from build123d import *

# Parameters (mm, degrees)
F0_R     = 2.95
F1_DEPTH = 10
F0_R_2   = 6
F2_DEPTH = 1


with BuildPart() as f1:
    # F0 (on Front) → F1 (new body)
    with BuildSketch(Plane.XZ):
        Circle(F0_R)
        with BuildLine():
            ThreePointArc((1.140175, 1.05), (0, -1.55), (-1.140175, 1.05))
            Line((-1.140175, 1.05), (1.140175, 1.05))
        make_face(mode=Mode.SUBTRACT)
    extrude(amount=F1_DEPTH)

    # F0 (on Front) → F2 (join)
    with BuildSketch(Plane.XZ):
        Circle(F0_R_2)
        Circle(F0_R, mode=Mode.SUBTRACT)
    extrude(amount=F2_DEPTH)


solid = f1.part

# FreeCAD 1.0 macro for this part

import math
import FreeCAD as App
import Part
import Sketcher
from FreeCAD import Vector
Q = App.Units.Quantity

doc = App.newDocument("Part")
body = doc.addObject("PartDesign::Body", "Body")

sketch1 = doc.addObject("Sketcher::SketchObject", "Sketch")
body.addObject(sketch1)
sketch1.AttachmentSupport = (doc.XZ_Plane, [""])
sketch1.MapMode = "FlatFace"
sketch1.addGeometry(Part.Circle(Vector(0, 0, 0), Vector(0, 0, 1), 3), False)
sketch1.addGeometry(Part.LineSegment(Vector(-1.1, 1.1, 0), Vector(1.1, 1.1, 0)), False)
sketch1.addGeometry(Part.ArcOfCircle(Part.Circle(Vector(0, 0, 0), Vector(0, 0, 1), 1.5), math.radians(137), math.radians(403)), False)
sketch1.addConstraint(Sketcher.Constraint("Coincident", 1, 1, 2, 1))
sketch1.addConstraint(Sketcher.Constraint("Coincident", 2, 2, 1, 2))
sketch1.addConstraint(Sketcher.Constraint("Horizontal", 1))
sketch1.addConstraint(Sketcher.Constraint("Coincident", 0, 3, -1, 1))
sketch1.addConstraint(Sketcher.Constraint("Coincident", 2, 3, -1, 1))
sketch1.addConstraint(Sketcher.Constraint("Diameter", 0, Q("5.9 mm")))
sketch1.addConstraint(Sketcher.Constraint("Radius", 2, Q("1.55 mm")))
sketch1.addConstraint(Sketcher.Constraint("DistanceY", -1, 1, 1, 1, Q("1.05 mm")))
pad1 = doc.addObject("PartDesign::Pad", "Pad")
body.addObject(pad1)
pad1.Profile = sketch1
pad1.Length = 10

sketch2 = doc.addObject("Sketcher::SketchObject", "Sketch001")
body.addObject(sketch2)
sketch2.AttachmentSupport = (doc.XZ_Plane, [""])
sketch2.MapMode = "FlatFace"
sketch2.addGeometry(Part.Circle(Vector(0, 0, 0), Vector(0, 0, 1), 6), False)
sketch2.addGeometry(Part.Circle(Vector(0, 0, 0), Vector(0, 0, 1), 3), False)
sketch2.addConstraint(Sketcher.Constraint("Coincident", 0, 3, -1, 1))
sketch2.addConstraint(Sketcher.Constraint("Coincident", 1, 3, -1, 1))
sketch2.addConstraint(Sketcher.Constraint("Diameter", 0, Q("12 mm")))
sketch2.addConstraint(Sketcher.Constraint("Diameter", 1, Q("5.9 mm")))
pad2 = doc.addObject("PartDesign::Pad", "Pad001")
body.addObject(pad2)
pad2.Profile = sketch2
pad2.Length = 1

doc.recompute()
